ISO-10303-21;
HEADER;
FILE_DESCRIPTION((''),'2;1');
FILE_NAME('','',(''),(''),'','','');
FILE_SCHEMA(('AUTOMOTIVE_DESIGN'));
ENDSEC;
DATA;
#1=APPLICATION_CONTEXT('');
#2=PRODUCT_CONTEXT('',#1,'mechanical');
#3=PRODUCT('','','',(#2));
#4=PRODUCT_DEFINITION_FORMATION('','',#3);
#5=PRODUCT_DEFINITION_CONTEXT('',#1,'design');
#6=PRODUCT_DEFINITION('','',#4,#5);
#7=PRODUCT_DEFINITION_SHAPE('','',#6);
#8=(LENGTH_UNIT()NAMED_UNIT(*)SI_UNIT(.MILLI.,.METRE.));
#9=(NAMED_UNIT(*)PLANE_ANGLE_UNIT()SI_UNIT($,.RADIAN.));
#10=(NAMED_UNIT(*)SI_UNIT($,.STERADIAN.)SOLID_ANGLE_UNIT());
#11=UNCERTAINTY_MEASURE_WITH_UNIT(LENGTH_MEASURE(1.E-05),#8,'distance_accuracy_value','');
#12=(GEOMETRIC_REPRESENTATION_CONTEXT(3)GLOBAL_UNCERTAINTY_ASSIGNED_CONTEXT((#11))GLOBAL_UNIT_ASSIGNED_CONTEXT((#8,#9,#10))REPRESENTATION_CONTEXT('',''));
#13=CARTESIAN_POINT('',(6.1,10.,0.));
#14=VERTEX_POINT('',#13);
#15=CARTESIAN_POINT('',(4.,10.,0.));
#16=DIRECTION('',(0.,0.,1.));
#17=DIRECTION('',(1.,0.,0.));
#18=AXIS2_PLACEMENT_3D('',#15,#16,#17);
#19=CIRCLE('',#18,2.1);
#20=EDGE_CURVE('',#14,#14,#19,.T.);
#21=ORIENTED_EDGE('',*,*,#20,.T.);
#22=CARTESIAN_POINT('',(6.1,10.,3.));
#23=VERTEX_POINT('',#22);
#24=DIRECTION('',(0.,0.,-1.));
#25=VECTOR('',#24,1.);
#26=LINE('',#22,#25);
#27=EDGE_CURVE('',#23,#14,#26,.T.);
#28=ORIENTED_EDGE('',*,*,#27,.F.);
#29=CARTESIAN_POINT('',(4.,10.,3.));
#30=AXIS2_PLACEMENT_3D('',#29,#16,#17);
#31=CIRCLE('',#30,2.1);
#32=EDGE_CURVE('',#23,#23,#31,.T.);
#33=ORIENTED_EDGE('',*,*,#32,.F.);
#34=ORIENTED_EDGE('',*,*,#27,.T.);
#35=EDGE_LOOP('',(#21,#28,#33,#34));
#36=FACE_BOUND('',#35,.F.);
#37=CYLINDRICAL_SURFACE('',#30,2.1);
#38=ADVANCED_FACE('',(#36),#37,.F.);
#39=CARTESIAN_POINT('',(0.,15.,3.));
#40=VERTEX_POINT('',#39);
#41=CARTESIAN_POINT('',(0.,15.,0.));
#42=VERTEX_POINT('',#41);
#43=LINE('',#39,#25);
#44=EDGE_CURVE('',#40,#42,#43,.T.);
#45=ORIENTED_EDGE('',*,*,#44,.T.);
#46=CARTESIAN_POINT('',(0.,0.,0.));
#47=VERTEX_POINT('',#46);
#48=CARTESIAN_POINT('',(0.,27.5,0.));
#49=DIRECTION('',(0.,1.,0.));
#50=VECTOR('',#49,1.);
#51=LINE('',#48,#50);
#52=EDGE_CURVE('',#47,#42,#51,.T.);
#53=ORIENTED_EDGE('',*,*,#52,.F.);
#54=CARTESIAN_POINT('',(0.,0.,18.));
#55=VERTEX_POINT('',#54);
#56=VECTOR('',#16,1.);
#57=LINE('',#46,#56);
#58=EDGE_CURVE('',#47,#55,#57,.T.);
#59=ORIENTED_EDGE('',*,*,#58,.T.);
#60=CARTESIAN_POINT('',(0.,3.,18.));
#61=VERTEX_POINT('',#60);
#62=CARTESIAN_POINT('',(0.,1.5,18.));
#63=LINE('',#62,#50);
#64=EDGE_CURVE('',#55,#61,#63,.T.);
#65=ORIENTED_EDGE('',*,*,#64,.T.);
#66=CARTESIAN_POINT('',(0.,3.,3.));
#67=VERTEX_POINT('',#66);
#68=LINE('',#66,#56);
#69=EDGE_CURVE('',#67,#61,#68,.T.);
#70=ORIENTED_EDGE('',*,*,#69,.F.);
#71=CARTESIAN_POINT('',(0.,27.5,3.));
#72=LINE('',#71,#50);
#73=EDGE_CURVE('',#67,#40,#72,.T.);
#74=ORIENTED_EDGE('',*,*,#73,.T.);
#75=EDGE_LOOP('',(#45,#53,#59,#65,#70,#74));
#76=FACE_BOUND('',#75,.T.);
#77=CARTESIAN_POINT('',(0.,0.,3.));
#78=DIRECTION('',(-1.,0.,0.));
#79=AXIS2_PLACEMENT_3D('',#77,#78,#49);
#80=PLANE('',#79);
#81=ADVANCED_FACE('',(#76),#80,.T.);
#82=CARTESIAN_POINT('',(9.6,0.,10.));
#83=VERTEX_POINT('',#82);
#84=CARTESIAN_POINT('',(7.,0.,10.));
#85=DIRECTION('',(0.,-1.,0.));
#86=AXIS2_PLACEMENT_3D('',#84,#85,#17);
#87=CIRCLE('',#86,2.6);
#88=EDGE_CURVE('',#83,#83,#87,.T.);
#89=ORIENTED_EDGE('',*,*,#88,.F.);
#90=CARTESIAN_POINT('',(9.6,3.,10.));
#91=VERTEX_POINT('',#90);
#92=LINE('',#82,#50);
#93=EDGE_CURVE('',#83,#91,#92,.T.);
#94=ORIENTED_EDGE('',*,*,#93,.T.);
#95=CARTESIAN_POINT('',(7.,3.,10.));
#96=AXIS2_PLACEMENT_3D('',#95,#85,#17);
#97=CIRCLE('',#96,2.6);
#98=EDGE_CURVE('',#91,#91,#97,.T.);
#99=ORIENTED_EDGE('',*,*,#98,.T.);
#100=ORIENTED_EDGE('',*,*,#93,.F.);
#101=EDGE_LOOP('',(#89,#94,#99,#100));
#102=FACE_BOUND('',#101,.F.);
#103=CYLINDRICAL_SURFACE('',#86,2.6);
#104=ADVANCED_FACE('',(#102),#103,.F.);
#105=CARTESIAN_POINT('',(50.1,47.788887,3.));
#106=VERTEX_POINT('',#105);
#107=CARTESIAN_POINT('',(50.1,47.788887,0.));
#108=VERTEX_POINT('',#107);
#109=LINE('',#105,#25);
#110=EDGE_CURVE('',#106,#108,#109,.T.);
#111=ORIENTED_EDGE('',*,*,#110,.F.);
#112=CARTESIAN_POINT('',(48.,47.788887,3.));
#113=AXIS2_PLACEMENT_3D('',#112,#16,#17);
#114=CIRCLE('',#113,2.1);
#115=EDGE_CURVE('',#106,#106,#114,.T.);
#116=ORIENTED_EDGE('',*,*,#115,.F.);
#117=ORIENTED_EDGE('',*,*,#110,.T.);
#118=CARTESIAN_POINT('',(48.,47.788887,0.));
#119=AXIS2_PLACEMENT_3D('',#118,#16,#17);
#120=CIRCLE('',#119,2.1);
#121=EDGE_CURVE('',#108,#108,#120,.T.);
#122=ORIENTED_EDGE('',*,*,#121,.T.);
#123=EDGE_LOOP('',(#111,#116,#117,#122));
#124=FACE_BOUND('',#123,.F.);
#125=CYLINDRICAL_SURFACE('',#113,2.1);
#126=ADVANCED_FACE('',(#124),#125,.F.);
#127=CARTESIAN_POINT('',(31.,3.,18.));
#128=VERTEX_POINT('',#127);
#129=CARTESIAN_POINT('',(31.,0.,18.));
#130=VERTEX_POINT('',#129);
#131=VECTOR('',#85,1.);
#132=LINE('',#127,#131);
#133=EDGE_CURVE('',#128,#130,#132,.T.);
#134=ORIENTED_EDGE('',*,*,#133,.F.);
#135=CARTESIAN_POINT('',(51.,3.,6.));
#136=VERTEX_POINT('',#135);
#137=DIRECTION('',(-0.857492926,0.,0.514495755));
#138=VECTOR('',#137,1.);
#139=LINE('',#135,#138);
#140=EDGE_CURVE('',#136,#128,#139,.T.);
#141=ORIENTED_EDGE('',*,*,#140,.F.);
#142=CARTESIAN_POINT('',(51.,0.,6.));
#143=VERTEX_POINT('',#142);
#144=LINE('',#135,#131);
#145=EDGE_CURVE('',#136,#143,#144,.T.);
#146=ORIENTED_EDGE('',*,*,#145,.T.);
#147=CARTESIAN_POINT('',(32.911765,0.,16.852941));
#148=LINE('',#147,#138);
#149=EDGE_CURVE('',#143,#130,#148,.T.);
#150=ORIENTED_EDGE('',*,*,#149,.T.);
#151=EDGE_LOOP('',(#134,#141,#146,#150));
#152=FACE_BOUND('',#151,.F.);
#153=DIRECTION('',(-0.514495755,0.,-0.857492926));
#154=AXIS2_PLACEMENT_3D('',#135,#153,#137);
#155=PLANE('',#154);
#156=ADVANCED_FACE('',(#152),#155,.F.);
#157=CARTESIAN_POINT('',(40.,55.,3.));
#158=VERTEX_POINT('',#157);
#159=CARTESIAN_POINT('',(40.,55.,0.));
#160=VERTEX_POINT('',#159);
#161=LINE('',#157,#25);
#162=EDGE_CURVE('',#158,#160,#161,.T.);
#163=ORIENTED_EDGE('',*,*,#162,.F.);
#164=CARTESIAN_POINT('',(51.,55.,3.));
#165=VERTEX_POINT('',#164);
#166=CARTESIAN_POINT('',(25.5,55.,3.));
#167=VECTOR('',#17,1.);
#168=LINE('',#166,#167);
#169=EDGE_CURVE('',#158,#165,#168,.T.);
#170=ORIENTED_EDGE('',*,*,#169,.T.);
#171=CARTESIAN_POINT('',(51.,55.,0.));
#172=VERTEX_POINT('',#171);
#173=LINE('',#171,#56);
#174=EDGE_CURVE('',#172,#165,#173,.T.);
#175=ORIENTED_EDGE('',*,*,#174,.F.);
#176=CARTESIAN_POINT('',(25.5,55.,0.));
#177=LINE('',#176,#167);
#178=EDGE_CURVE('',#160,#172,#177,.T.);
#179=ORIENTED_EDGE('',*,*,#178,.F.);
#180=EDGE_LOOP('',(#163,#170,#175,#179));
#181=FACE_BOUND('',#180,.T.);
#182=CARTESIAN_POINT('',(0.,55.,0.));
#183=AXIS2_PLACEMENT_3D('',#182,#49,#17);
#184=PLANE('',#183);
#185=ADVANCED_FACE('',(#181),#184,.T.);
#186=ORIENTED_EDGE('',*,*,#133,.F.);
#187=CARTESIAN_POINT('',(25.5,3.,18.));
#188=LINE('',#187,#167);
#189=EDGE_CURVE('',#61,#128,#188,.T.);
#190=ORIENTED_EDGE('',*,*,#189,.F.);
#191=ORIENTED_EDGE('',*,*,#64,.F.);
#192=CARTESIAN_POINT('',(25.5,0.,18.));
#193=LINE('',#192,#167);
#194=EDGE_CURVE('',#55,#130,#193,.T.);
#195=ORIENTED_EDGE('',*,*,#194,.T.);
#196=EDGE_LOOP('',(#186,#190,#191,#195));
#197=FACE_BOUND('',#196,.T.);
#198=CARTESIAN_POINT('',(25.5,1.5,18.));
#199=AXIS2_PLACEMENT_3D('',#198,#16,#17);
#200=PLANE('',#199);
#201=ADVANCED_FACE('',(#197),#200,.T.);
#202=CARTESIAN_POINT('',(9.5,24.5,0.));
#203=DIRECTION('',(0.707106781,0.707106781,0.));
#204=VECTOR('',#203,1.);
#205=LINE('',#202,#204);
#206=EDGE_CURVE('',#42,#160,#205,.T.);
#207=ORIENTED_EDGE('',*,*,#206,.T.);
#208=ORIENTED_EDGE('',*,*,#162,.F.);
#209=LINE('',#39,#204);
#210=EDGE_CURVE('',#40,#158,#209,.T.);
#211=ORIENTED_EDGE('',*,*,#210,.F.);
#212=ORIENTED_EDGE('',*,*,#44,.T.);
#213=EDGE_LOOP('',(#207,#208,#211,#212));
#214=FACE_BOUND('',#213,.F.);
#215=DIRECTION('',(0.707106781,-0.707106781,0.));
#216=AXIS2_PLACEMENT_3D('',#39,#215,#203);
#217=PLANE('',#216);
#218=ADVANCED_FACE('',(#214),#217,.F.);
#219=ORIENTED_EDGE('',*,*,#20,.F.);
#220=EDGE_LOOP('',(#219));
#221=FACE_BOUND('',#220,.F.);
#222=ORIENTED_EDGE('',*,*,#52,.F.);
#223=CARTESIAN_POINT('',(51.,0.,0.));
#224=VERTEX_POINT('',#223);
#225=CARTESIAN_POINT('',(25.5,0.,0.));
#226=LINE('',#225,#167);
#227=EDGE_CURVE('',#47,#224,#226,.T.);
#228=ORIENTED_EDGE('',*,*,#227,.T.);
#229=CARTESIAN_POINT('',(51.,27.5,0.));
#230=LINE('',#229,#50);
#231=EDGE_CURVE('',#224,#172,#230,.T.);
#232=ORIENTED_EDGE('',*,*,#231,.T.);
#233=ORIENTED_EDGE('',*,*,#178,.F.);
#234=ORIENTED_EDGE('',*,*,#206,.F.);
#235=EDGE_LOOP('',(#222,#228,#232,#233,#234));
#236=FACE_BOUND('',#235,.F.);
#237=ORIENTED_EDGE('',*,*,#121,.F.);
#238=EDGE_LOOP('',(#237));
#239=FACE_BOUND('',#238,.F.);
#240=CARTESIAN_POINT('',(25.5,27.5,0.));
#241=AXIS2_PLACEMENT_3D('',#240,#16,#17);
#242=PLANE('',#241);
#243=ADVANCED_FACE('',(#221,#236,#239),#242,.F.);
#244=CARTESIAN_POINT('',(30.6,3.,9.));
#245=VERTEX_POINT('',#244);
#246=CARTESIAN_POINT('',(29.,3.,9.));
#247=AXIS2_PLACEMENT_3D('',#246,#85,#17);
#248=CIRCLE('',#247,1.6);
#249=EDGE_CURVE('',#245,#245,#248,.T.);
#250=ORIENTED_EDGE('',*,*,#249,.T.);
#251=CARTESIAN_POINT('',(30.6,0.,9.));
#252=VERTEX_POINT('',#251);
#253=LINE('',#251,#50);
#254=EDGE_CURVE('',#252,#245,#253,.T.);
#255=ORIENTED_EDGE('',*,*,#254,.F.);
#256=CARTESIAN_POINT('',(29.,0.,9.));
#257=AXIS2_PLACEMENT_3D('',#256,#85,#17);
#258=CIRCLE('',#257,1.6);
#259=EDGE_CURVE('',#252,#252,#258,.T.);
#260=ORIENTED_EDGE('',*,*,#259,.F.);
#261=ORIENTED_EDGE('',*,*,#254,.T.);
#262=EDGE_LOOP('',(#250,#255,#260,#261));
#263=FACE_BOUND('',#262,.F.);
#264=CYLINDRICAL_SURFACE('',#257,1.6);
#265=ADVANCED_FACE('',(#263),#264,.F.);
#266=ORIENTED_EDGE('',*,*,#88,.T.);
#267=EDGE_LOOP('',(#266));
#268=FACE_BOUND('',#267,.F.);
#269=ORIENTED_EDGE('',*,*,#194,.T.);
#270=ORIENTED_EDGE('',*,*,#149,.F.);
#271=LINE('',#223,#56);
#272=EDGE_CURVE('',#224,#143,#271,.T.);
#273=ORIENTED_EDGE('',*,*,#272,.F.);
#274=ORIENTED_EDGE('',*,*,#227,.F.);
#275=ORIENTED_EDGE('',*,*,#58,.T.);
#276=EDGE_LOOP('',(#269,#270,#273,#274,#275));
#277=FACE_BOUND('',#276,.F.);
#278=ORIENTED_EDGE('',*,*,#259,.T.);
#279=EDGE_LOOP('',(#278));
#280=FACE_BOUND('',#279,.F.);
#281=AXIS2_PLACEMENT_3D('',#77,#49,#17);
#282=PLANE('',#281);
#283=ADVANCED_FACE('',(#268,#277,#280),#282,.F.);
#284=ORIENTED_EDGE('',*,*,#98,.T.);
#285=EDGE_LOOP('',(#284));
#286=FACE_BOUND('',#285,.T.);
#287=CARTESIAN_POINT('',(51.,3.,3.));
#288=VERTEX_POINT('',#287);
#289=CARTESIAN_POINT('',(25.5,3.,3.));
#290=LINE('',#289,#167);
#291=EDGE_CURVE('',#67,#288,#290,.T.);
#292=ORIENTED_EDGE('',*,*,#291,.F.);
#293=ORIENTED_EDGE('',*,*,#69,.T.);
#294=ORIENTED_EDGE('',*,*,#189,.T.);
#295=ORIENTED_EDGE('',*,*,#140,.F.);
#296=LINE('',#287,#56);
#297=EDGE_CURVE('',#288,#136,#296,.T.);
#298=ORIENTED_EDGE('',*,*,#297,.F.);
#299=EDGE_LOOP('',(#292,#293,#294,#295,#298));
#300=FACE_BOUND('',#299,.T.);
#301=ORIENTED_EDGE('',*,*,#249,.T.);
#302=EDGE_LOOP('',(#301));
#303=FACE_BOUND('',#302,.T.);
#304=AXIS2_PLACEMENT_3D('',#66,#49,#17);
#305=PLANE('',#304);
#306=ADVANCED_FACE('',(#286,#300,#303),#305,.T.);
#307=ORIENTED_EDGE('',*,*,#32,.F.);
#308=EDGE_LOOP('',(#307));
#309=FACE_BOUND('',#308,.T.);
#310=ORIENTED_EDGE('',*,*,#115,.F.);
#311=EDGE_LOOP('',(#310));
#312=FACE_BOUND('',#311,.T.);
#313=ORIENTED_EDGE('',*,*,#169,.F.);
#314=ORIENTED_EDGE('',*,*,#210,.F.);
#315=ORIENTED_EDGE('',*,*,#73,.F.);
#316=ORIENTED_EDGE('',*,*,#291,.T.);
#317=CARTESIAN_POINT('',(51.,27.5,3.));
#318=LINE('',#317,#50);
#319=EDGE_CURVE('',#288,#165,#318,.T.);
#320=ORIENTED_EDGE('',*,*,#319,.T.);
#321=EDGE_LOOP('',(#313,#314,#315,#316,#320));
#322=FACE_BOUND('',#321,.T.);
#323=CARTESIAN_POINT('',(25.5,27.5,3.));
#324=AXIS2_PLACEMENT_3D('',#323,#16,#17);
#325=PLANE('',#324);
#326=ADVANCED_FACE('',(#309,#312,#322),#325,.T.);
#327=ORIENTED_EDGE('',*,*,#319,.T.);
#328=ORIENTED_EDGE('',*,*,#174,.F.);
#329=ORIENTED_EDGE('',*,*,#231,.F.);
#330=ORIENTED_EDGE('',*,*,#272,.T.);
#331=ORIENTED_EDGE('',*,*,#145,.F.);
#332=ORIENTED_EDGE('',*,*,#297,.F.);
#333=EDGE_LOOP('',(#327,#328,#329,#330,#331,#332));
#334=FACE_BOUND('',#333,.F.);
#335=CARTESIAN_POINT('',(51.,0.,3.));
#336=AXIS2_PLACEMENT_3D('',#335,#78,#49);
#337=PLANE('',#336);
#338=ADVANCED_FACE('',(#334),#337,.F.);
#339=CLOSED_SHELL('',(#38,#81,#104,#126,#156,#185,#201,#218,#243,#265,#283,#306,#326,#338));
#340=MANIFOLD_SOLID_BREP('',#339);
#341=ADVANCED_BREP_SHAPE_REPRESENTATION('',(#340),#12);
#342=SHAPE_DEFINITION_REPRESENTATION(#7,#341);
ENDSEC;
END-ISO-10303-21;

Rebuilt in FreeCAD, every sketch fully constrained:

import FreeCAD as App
import Part
import Sketcher

V = App.Vector
Q = App.Units.Quantity

doc = App.newDocument("Part")
body = doc.addObject("PartDesign::Body", "Body")

# Sketch on XY plane
sketch1 = doc.addObject("Sketcher::SketchObject", "Sketch")
body.addObject(sketch1)
sketch1.AttachmentSupport = (doc.XY_Plane, [""])
sketch1.MapMode = "FlatFace"
sketch1.addGeometry([
    Part.LineSegment(V(0, 55, 0), V(0, 0, 0)),
    Part.LineSegment(V(0, 0, 0), V(51, 0, 0)),
    Part.LineSegment(V(51, 0, 0), V(51, 55, 0)),
    Part.LineSegment(V(51, 55, 0), V(0, 55, 0)),
], False)
sketch1.addConstraint([
    Sketcher.Constraint("Coincident", 0, 2, 1, 1),
    Sketcher.Constraint("Coincident", 1, 2, 2, 1),
    Sketcher.Constraint("Coincident", 2, 2, 3, 1),
    Sketcher.Constraint("Coincident", 3, 2, 0, 1),
    Sketcher.Constraint("Vertical", 0),
    Sketcher.Constraint("Horizontal", 1),
    Sketcher.Constraint("Vertical", 2),
    Sketcher.Constraint("Horizontal", 3),
    Sketcher.Constraint("Coincident", 0, 2, -1, 1),
    Sketcher.Constraint("DistanceX", 1, 1, 1, 2, Q("51 mm")),
    Sketcher.Constraint("DistanceY", 0, 2, 0, 1, Q("55 mm")),
])
pad1 = doc.addObject("PartDesign::Pad", "Pad")
body.addObject(pad1)
pad1.Profile = sketch1
pad1.Length = 3

# Sketch on XY plane
sketch2 = doc.addObject("Sketcher::SketchObject", "Sketch001")
body.addObject(sketch2)
sketch2.AttachmentSupport = (doc.XY_Plane, [""])
sketch2.MapMode = "FlatFace"
sketch2.AttachmentOffset = App.Placement(V(0, 0, 3), App.Rotation())
sketch2.addGeometry([
    Part.LineSegment(V(0, 3, 0), V(0, 0, 0)),
    Part.LineSegment(V(0, 0, 0), V(51, 0, 0)),
    Part.LineSegment(V(51, 0, 0), V(51, 3, 0)),
    Part.LineSegment(V(51, 3, 0), V(0, 3, 0)),
], False)
sketch2.addConstraint([
    Sketcher.Constraint("Coincident", 0, 2, 1, 1),
    Sketcher.Constraint("Coincident", 1, 2, 2, 1),
    Sketcher.Constraint("Coincident", 2, 2, 3, 1),
    Sketcher.Constraint("Coincident", 3, 2, 0, 1),
    Sketcher.Constraint("Vertical", 0),
    Sketcher.Constraint("Horizontal", 1),
    Sketcher.Constraint("Vertical", 2),
    Sketcher.Constraint("Horizontal", 3),
    Sketcher.Constraint("Coincident", 0, 2, -1, 1),
    Sketcher.Constraint("DistanceX", 1, 1, 1, 2, Q("51 mm")),
    Sketcher.Constraint("DistanceY", 0, 2, 0, 1, Q("3 mm")),
])
pad2 = doc.addObject("PartDesign::Pad", "Pad001")
body.addObject(pad2)
pad2.Profile = sketch2
pad2.Length = 15

# Sketch on XZ plane
sketch3 = doc.addObject("Sketcher::SketchObject", "Sketch002")
body.addObject(sketch3)
sketch3.AttachmentSupport = (doc.XZ_Plane, [""])
sketch3.MapMode = "FlatFace"
sketch3.addGeometry([
    Part.Circle(V(7, 10, 0), V(0, 0, 1), 2.6),
    Part.Circle(V(29, 9, 0), V(0, 0, 1), 1.6),
], False)
sketch3.addConstraint([
    Sketcher.Constraint("Diameter", 0, Q("5.2 mm")),
    Sketcher.Constraint("Diameter", 1, Q("3.2 mm")),
    Sketcher.Constraint("DistanceX", -1, 1, 0, 3, Q("7 mm")),
    Sketcher.Constraint("DistanceY", -1, 1, 0, 3, Q("10 mm")),
    Sketcher.Constraint("DistanceX", -1, 1, 1, 3, Q("29 mm")),
    Sketcher.Constraint("DistanceY", -1, 1, 1, 3, Q("9 mm")),
])
pocket1 = doc.addObject("PartDesign::Pocket", "Pocket")
body.addObject(pocket1)
pocket1.Profile = sketch3
pocket1.Length = 25

# Sketch on XY plane
sketch4 = doc.addObject("Sketcher::SketchObject", "Sketch003")
body.addObject(sketch4)
sketch4.AttachmentSupport = (doc.XY_Plane, [""])
sketch4.MapMode = "FlatFace"
sketch4.AttachmentOffset = App.Placement(V(0, 0, 3), App.Rotation())
sketch4.addGeometry([
    Part.Circle(V(4, 10, 0), V(0, 0, 1), 2.1),
    Part.Circle(V(48, 47.8, 0), V(0, 0, 1), 2.1),
], False)
sketch4.addConstraint([
    Sketcher.Constraint("Equal", 0, 1),
    Sketcher.Constraint("Diameter", 0, Q("4.2 mm")),
    Sketcher.Constraint("DistanceX", -1, 1, 0, 3, Q("4 mm")),
    Sketcher.Constraint("DistanceY", -1, 1, 0, 3, Q("10 mm")),
    Sketcher.Constraint("DistanceX", -1, 1, 1, 3, Q("48 mm")),
    Sketcher.Constraint("DistanceY", -1, 1, 1, 3, Q("47.788887 mm")),
])
pocket2 = doc.addObject("PartDesign::Pocket", "Pocket001")
body.addObject(pocket2)
pocket2.Profile = sketch4
pocket2.Length = 25

# Sketch on XY plane
sketch5 = doc.addObject("Sketcher::SketchObject", "Sketch004")
body.addObject(sketch5)
sketch5.AttachmentSupport = (doc.XY_Plane, [""])
sketch5.MapMode = "FlatFace"
sketch5.AttachmentOffset = App.Placement(V(0, 0, 3), App.Rotation())
sketch5.addGeometry([
    Part.LineSegment(V(0, 15, 0), V(40, 55, 0)),
    Part.LineSegment(V(40, 55, 0), V(0, 55, 0)),
    Part.LineSegment(V(0, 55, 0), V(0, 15, 0)),
], False)
sketch5.addConstraint([
    Sketcher.Constraint("Coincident", 0, 2, 1, 1),
    Sketcher.Constraint("Coincident", 1, 2, 2, 1),
    Sketcher.Constraint("Coincident", 2, 2, 0, 1),
    Sketcher.Constraint("Horizontal", 1),
    Sketcher.Constraint("Vertical", 2),
    Sketcher.Constraint("PointOnObject", 1, 2, -2),
    Sketcher.Constraint("Equal", 1, 2),
    Sketcher.Constraint("DistanceX", 1, 2, 1, 1, Q("40 mm")),
    Sketcher.Constraint("DistanceY", -1, 1, 0, 2, Q("55 mm")),
])
pocket3 = doc.addObject("PartDesign::Pocket", "Pocket002")
body.addObject(pocket3)
pocket3.Profile = sketch5
pocket3.Length = 25

# Sketch on XZ plane
sketch6 = doc.addObject("Sketcher::SketchObject", "Sketch005")
body.addObject(sketch6)
sketch6.AttachmentSupport = (doc.XZ_Plane, [""])
sketch6.MapMode = "FlatFace"
sketch6.AttachmentOffset = App.Placement(V(0, 0, -3), App.Rotation())
sketch6.addGeometry([
    Part.LineSegment(V(51, 6, 0), V(31, 18, 0)),
    Part.LineSegment(V(31, 18, 0), V(51, 18, 0)),
    Part.LineSegment(V(51, 18, 0), V(51, 6, 0)),
], False)
sketch6.addConstraint([
    Sketcher.Constraint("Coincident", 0, 2, 1, 1),
    Sketcher.Constraint("Coincident", 1, 2, 2, 1),
    Sketcher.Constraint("Coincident", 2, 2, 0, 1),
    Sketcher.Constraint("Horizontal", 1),
    Sketcher.Constraint("Vertical", 2),
    Sketcher.Constraint("DistanceX", 1, 1, 1, 2, Q("20 mm")),
    Sketcher.Constraint("DistanceY", 2, 2, 2, 1, Q("12 mm")),
    Sketcher.Constraint("DistanceX", -1, 1, 0, 2, Q("31 mm")),
    Sketcher.Constraint("DistanceY", -1, 1, 0, 2, Q("18 mm")),
])
pocket4 = doc.addObject("PartDesign::Pocket", "Pocket003")
body.addObject(pocket4)
pocket4.Profile = sketch6
pocket4.Length = 25
pocket4.Reversed = True

doc.recompute()
